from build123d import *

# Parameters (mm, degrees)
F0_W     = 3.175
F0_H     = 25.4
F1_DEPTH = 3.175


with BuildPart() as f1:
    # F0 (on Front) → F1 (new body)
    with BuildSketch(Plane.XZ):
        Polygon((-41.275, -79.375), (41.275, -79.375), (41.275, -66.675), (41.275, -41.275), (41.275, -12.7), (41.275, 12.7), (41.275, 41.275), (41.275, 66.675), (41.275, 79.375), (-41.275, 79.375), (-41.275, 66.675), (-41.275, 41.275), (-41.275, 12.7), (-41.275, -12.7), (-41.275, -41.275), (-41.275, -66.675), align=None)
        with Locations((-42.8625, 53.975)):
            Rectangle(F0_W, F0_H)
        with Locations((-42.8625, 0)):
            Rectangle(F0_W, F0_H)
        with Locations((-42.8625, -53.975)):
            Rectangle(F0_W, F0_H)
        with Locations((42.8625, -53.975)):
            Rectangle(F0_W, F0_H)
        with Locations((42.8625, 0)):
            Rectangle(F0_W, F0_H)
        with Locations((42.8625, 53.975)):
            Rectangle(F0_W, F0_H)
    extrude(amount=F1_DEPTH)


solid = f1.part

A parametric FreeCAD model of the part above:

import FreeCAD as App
import Part
import Sketcher
Q = App.Units.Quantity

doc = App.newDocument("Part")
body = doc.addObject("PartDesign::Body", "Body")

sketch1 = doc.addObject("Sketcher::SketchObject", "Sketch")
body.addObject(sketch1)
sketch1.AttachmentSupport = (doc.XZ_Plane, [""])
sketch1.MapMode = "FlatFace"
sketch1.addGeometry([
    Part.LineSegment(App.Vector(-41.3, -79.4, 0), App.Vector(41.3, -79.4, 0)),
    Part.LineSegment(App.Vector(41.3, -79.4, 0), App.Vector(41.3, -66.7, 0)),
    Part.LineSegment(App.Vector(41.3, -66.7, 0), App.Vector(44.5, -66.7, 0)),
    Part.LineSegment(App.Vector(44.5, -66.7, 0), App.Vector(44.5, -41.3, 0)),
    Part.LineSegment(App.Vector(44.5, -41.3, 0), App.Vector(41.3, -41.3, 0)),
    Part.LineSegment(App.Vector(41.3, -41.3, 0), App.Vector(41.3, -12.7, 0)),
    Part.LineSegment(App.Vector(41.3, -12.7, 0), App.Vector(44.5, -12.7, 0)),
    Part.LineSegment(App.Vector(44.5, -12.7, 0), App.Vector(44.5, 12.7, 0)),
    Part.LineSegment(App.Vector(44.5, 12.7, 0), App.Vector(41.3, 12.7, 0)),
    Part.LineSegment(App.Vector(41.3, 12.7, 0), App.Vector(41.3, 41.3, 0)),
    Part.LineSegment(App.Vector(41.3, 41.3, 0), App.Vector(44.5, 41.3, 0)),
    Part.LineSegment(App.Vector(44.5, 41.3, 0), App.Vector(44.5, 66.7, 0)),
    Part.LineSegment(App.Vector(44.5, 66.7, 0), App.Vector(41.3, 66.7, 0)),
    Part.LineSegment(App.Vector(41.3, 66.7, 0), App.Vector(41.3, 79.4, 0)),
    Part.LineSegment(App.Vector(41.3, 79.4, 0), App.Vector(-41.3, 79.4, 0)),
    Part.LineSegment(App.Vector(-41.3, 79.4, 0), App.Vector(-41.3, 66.7, 0)),
    Part.LineSegment(App.Vector(-41.3, 66.7, 0), App.Vector(-44.5, 66.7, 0)),
    Part.LineSegment(App.Vector(-44.5, 66.7, 0), App.Vector(-44.5, 41.3, 0)),
    Part.LineSegment(App.Vector(-44.5, 41.3, 0), App.Vector(-41.3, 41.3, 0)),
    Part.LineSegment(App.Vector(-41.3, 41.3, 0), App.Vector(-41.3, 12.7, 0)),
    Part.LineSegment(App.Vector(-41.3, 12.7, 0), App.Vector(-44.5, 12.7, 0)),
    Part.LineSegment(App.Vector(-44.5, 12.7, 0), App.Vector(-44.5, -12.7, 0)),
    Part.LineSegment(App.Vector(-44.5, -12.7, 0), App.Vector(-41.3, -12.7, 0)),
    Part.LineSegment(App.Vector(-41.3, -12.7, 0), App.Vector(-41.3, -41.3, 0)),
    Part.LineSegment(App.Vector(-41.3, -41.3, 0), App.Vector(-44.5, -41.3, 0)),
    Part.LineSegment(App.Vector(-44.5, -41.3, 0), App.Vector(-44.5, -66.7, 0)),
    Part.LineSegment(App.Vector(-44.5, -66.7, 0), App.Vector(-41.3, -66.7, 0)),
    Part.LineSegment(App.Vector(-41.3, -66.7, 0), App.Vector(-41.3, -79.4, 0)),
], False)
sketch1.addConstraint([
    Sketcher.Constraint("Coincident", 0, 2, 1, 1),
    Sketcher.Constraint("Coincident", 1, 2, 2, 1),
    Sketcher.Constraint("Coincident", 2, 2, 3, 1),
    Sketcher.Constraint("Coincident", 3, 2, 4, 1),
    Sketcher.Constraint("Coincident", 4, 2, 5, 1),
    Sketcher.Constraint("Coincident", 5, 2, 6, 1),
    Sketcher.Constraint("Coincident", 6, 2, 7, 1),
    Sketcher.Constraint("Coincident", 7, 2, 8, 1),
    Sketcher.Constraint("Coincident", 8, 2, 9, 1),
    Sketcher.Constraint("Coincident", 9, 2, 10, 1),
    Sketcher.Constraint("Coincident", 10, 2, 11, 1),
    Sketcher.Constraint("Coincident", 11, 2, 12, 1),
    Sketcher.Constraint("Coincident", 12, 2, 13, 1),
    Sketcher.Constraint("Coincident", 13, 2, 14, 1),
    Sketcher.Constraint("Coincident", 14, 2, 15, 1),
    Sketcher.Constraint("Coincident", 15, 2, 16, 1),
    Sketcher.Constraint("Coincident", 16, 2, 17, 1),
    Sketcher.Constraint("Coincident", 17, 2, 18, 1),
    Sketcher.Constraint("Coincident", 18, 2, 19, 1),
    Sketcher.Constraint("Coincident", 19, 2, 20, 1),
    Sketcher.Constraint("Coincident", 20, 2, 21, 1),
    Sketcher.Constraint("Coincident", 21, 2, 22, 1),
    Sketcher.Constraint("Coincident", 22, 2, 23, 1),
    Sketcher.Constraint("Coincident", 23, 2, 24, 1),
    Sketcher.Constraint("Coincident", 24, 2, 25, 1),
    Sketcher.Constraint("Coincident", 25, 2, 26, 1),
    Sketcher.Constraint("Coincident", 26, 2, 27, 1),
    Sketcher.Constraint("Coincident", 27, 2, 0, 1),
    Sketcher.Constraint("Horizontal", 0),
    Sketcher.Constraint("Vertical", 1),
    Sketcher.Constraint("Horizontal", 2),
    Sketcher.Constraint("Vertical", 3),
    Sketcher.Constraint("Horizontal", 4),
    Sketcher.Constraint("Vertical", 5),
    Sketcher.Constraint("Horizontal", 6),
    Sketcher.Constraint("Vertical", 7),
    Sketcher.Constraint("Horizontal", 8),
    Sketcher.Constraint("Vertical", 9),
    Sketcher.Constraint("Horizontal", 10),
    Sketcher.Constraint("Vertical", 11),
    Sketcher.Constraint("Horizontal", 12),
    Sketcher.Constraint("Vertical", 13),
    Sketcher.Constraint("Horizontal", 14),
    Sketcher.Constraint("Vertical", 15),
    Sketcher.Constraint("Horizontal", 16),
    Sketcher.Constraint("Vertical", 17),
    Sketcher.Constraint("Horizontal", 18),
    Sketcher.Constraint("Vertical", 19),
    Sketcher.Constraint("Horizontal", 20),
    Sketcher.Constraint("Vertical", 21),
    Sketcher.Constraint("Horizontal", 22),
    Sketcher.Constraint("Vertical", 23),
    Sketcher.Constraint("Horizontal", 24),
    Sketcher.Constraint("Vertical", 25),
    Sketcher.Constraint("Horizontal", 26),
    Sketcher.Constraint("Vertical", 27),
    Sketcher.Constraint("Symmetric", 0, 2, 14, 2, -1, 1),
    Sketcher.Constraint("Symmetric", 2, 2, 16, 2, -1, 1),
    Sketcher.Constraint("Symmetric", 4, 2, 18, 2, -1, 1),
    Sketcher.Constraint("Symmetric", 6, 2, 20, 2, -1, 1),
    Sketcher.Constraint("Symmetric", 8, 2, 22, 2, -1, 1),
    Sketcher.Constraint("Symmetric", 10, 2, 24, 2, -1, 1),
    Sketcher.Constraint("Symmetric", 12, 2, 26, 2, -1, 1),
    Sketcher.Constraint("Symmetric", 12, 2, 15, 2, -2),
    Sketcher.Constraint("Symmetric", 10, 2, 17, 2, -2),
    Sketcher.Constraint("Symmetric", 8, 2, 19, 2, -2),
    Sketcher.Constraint("Vertical", 1, 2, 4, 2),
    Sketcher.Constraint("Vertical", 3, 2, 6, 2),
    Sketcher.Constraint("Equal", 3, 7),
    Sketcher.Constraint("DistanceY", 3, 1, 3, 2, Q("1 in")),
    Sketcher.Constraint("DistanceY", 1, 1, 1, 2, Q("0.5 in")),
    Sketcher.Constraint("DistanceX", 0, 1, 0, 2, Q("3.25 in")),
    Sketcher.Constraint("DistanceX", 16, 2, 11, 2, Q("3.5 in")),
    Sketcher.Constraint("DistanceY", 5, 1, 5, 2, Q("1.125 in")),
])
pad1 = doc.addObject("PartDesign::Pad", "Pad")
body.addObject(pad1)
pad1.Profile = sketch1
pad1.Length = Q("0.125 in")

doc.recompute()
